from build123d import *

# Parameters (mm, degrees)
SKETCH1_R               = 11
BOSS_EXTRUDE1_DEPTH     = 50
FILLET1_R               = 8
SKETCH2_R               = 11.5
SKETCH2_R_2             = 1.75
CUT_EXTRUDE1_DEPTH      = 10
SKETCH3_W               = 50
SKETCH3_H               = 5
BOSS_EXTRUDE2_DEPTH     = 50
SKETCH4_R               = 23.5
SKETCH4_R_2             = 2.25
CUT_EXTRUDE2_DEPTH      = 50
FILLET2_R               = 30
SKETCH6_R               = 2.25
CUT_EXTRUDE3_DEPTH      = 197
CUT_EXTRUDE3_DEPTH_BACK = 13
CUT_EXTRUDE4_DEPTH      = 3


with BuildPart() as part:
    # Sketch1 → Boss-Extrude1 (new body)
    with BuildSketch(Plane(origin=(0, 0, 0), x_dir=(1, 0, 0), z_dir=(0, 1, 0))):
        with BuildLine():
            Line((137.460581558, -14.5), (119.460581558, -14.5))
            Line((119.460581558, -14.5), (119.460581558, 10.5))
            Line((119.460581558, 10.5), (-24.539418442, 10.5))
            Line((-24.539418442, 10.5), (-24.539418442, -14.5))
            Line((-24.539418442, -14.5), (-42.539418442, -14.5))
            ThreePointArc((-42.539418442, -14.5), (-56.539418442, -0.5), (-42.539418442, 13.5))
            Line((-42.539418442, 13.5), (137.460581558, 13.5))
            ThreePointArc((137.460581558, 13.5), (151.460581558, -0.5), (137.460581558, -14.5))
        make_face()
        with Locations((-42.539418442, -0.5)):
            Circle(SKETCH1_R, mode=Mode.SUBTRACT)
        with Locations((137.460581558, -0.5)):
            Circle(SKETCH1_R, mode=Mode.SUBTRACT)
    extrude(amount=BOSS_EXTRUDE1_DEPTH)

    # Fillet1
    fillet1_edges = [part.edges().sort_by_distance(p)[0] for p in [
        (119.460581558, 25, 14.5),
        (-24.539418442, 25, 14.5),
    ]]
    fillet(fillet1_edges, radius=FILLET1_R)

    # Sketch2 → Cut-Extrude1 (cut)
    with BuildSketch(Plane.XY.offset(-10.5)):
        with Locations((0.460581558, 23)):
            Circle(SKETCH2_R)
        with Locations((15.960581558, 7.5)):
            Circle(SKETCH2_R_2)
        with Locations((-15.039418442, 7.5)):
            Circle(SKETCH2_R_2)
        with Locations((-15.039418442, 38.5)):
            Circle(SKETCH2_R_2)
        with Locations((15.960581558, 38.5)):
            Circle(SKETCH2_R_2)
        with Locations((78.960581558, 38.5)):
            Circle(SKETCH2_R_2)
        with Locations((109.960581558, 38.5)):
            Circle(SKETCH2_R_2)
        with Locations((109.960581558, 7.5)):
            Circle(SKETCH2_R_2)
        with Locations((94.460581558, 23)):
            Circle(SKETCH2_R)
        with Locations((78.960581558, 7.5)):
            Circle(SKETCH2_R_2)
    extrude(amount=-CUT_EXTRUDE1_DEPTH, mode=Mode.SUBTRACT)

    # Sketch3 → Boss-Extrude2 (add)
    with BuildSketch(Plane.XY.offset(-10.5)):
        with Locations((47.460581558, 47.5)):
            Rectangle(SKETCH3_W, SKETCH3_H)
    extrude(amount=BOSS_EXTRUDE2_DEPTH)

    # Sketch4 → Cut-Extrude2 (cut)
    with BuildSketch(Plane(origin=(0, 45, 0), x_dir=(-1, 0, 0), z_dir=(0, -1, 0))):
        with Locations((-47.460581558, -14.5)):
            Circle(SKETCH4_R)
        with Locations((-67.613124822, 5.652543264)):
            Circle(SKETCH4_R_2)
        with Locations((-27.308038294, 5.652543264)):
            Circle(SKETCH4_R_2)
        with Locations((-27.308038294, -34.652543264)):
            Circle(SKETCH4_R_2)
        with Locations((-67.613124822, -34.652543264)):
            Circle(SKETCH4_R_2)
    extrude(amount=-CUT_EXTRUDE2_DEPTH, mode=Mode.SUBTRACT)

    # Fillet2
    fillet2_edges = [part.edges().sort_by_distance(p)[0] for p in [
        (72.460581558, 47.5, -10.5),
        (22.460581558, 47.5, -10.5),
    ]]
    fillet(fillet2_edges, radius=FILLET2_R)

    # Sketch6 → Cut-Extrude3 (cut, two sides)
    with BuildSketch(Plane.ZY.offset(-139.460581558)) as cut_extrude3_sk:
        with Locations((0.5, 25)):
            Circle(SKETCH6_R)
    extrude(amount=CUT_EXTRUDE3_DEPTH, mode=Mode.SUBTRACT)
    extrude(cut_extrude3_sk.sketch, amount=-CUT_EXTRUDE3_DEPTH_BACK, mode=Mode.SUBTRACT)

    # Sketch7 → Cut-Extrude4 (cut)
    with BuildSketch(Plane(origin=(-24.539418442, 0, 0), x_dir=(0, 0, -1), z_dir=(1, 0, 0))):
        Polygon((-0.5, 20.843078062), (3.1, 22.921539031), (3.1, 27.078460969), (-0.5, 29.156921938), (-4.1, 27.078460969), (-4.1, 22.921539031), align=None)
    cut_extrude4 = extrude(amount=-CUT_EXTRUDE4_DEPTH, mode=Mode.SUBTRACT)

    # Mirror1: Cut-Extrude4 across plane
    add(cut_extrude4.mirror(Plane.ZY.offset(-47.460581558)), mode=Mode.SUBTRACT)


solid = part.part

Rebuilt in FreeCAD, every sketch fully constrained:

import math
import FreeCAD as App
import Part
import Sketcher

V = App.Vector
Q = App.Units.Quantity


def edges_at(feature, points):
    """Names of the edges that pass closest to the given points."""
    edges = feature.Shape.Edges
    near = lambda p: min(range(len(edges)), key=lambda i: edges[i].distToShape(Part.Vertex(*p))[0])
    return sorted({f"Edge{near(p) + 1}" for p in points})

doc = App.newDocument("Part")
body = doc.addObject("PartDesign::Body", "Body")

# Sketch on XZ plane
sketch1 = doc.addObject("Sketcher::SketchObject", "Sketch")
body.addObject(sketch1)
sketch1.AttachmentSupport = (doc.XZ_Plane, [""])
sketch1.MapMode = "FlatFace"
sketch1.addGeometry(Part.LineSegment(V(119.460582, 14.5, 0), V(137.460582, 14.5, 0)), False)
sketch1.addGeometry(Part.ArcOfCircle(Part.Circle(V(137.460582, 0.5, 0), V(0, 0, 1), 14), math.radians(-90), math.radians(90)), False)
sketch1.addGeometry(Part.LineSegment(V(137.460582, -13.5, 0), V(-42.539418, -13.5, 0)), False)
sketch1.addGeometry(Part.ArcOfCircle(Part.Circle(V(-42.539418, 0.5, 0), V(0, 0, 1), 14), math.radians(90), math.radians(270)), False)
sketch1.addGeometry(Part.LineSegment(V(-42.539418, 14.5, 0), V(-24.539418, 14.5, 0)), False)
sketch1.addGeometry(Part.LineSegment(V(-24.539418, 14.5, 0), V(-24.539418, -10.5, 0)), False)
sketch1.addGeometry(Part.LineSegment(V(-24.539418, -10.5, 0), V(119.460582, -10.5, 0)), False)
sketch1.addGeometry(Part.LineSegment(V(119.460582, -10.5, 0), V(119.460582, 14.5, 0)), False)
sketch1.addGeometry(Part.Circle(V(137.460582, 0.5, 0), V(0, 0, 1), 11), False)
sketch1.addGeometry(Part.Circle(V(-42.539418, 0.5, 0), V(0, 0, 1), 11), False)
sketch1.addConstraint(Sketcher.Constraint("Tangent", 0, 2, 1, 2))
sketch1.addConstraint(Sketcher.Constraint("Tangent", 1, 1, 2, 1))
sketch1.addConstraint(Sketcher.Constraint("Tangent", 2, 2, 3, 2))
sketch1.addConstraint(Sketcher.Constraint("Tangent", 3, 1, 4, 1))
sketch1.addConstraint(Sketcher.Constraint("Coincident", 4, 2, 5, 1))
sketch1.addConstraint(Sketcher.Constraint("Coincident", 5, 2, 6, 1))
sketch1.addConstraint(Sketcher.Constraint("Coincident", 6, 2, 7, 1))
sketch1.addConstraint(Sketcher.Constraint("Coincident", 7, 2, 0, 1))
sketch1.addConstraint(Sketcher.Constraint("Horizontal", 0))
sketch1.addConstraint(Sketcher.Constraint("Horizontal", 2))
sketch1.addConstraint(Sketcher.Constraint("Horizontal", 4))
sketch1.addConstraint(Sketcher.Constraint("Vertical", 5))
sketch1.addConstraint(Sketcher.Constraint("Horizontal", 6))
sketch1.addConstraint(Sketcher.Constraint("Vertical", 7))
sketch1.addConstraint(Sketcher.Constraint("Coincident", 8, 3, 1, 3))
sketch1.addConstraint(Sketcher.Constraint("Coincident", 9, 3, 3, 3))
sketch1.addConstraint(Sketcher.Constraint("Equal", 1, 3))
sketch1.addConstraint(Sketcher.Constraint("Equal", 8, 9))
sketch1.addConstraint(Sketcher.Constraint("Equal", 0, 4))
sketch1.addConstraint(Sketcher.Constraint("Diameter", 8, Q("22 mm")))
sketch1.addConstraint(Sketcher.Constraint("Radius", 1, Q("14 mm")))
sketch1.addConstraint(Sketcher.Constraint("DistanceX", 0, 1, 0, 2, Q("18 mm")))
sketch1.addConstraint(Sketcher.Constraint("DistanceX", 2, 2, 2, 1, Q("180 mm")))
sketch1.addConstraint(Sketcher.Constraint("DistanceY", 5, 2, 5, 1, Q("25 mm")))
sketch1.addConstraint(Sketcher.Constraint("DistanceY", -1, 1, 1, 3, Q("0.5 mm")))
sketch1.addConstraint(Sketcher.Constraint("DistanceX", -1, 1, 1, 3, Q("137.460582 mm")))
pad1 = doc.addObject("PartDesign::Pad", "Pad")
body.addObject(pad1)
pad1.Profile = sketch1
pad1.Length = 50
pad1.Reversed = True
doc.recompute()

fillet = doc.addObject("PartDesign::Fillet", "Fillet")
body.addObject(fillet)
fillet.Base = (pad1, edges_at(pad1, [(119.461, 25, 14.5), (-24.539, 25, 14.5)]))
fillet.Radius = 8

# Sketch on XY plane
sketch2 = doc.addObject("Sketcher::SketchObject", "Sketch001")
body.addObject(sketch2)
sketch2.AttachmentSupport = (doc.XY_Plane, [""])
sketch2.MapMode = "FlatFace"
sketch2.AttachmentOffset = App.Placement(V(0, 0, -10.5), App.Rotation())
sketch2.addGeometry(Part.Circle(V(0.460582, 23, 0), V(0, 0, 1), 11.5), False)
sketch2.addGeometry(Part.Circle(V(15.960582, 7.5, 0), V(0, 0, 1), 1.75), False)
sketch2.addGeometry(Part.Circle(V(-15.039418, 7.5, 0), V(0, 0, 1), 1.75), False)
sketch2.addGeometry(Part.Circle(V(-15.039418, 38.5, 0), V(0, 0, 1), 1.75), False)
sketch2.addGeometry(Part.Circle(V(15.960582, 38.5, 0), V(0, 0, 1), 1.75), False)
sketch2.addGeometry(Part.Circle(V(78.960582, 38.5, 0), V(0, 0, 1), 1.75), False)
sketch2.addGeometry(Part.Circle(V(109.960582, 38.5, 0), V(0, 0, 1), 1.75), False)
sketch2.addGeometry(Part.Circle(V(109.960582, 7.5, 0), V(0, 0, 1), 1.75), False)
sketch2.addGeometry(Part.Circle(V(94.460582, 23, 0), V(0, 0, 1), 11.5), False)
sketch2.addGeometry(Part.Circle(V(78.960582, 7.5, 0), V(0, 0, 1), 1.75), False)
sketch2.addConstraint(Sketcher.Constraint("Equal", 1, 2))
sketch2.addConstraint(Sketcher.Constraint("Equal", 2, 3))
sketch2.addConstraint(Sketcher.Constraint("Equal", 3, 4))
sketch2.addConstraint(Sketcher.Constraint("Equal", 4, 5))
sketch2.addConstraint(Sketcher.Constraint("Equal", 5, 6))
sketch2.addConstraint(Sketcher.Constraint("Equal", 6, 7))
sketch2.addConstraint(Sketcher.Constraint("Equal", 0, 8))
sketch2.addConstraint(Sketcher.Constraint("Equal", 7, 9))
sketch2.addConstraint(Sketcher.Constraint("Horizontal", 1, 3, 2, 3))
sketch2.addConstraint(Sketcher.Constraint("Horizontal", 3, 3, 4, 3))
sketch2.addConstraint(Sketcher.Constraint("Horizontal", 4, 3, 5, 3))
sketch2.addConstraint(Sketcher.Constraint("Horizontal", 5, 3, 6, 3))
sketch2.addConstraint(Sketcher.Constraint("Horizontal", 2, 3, 7, 3))
sketch2.addConstraint(Sketcher.Constraint("Horizontal", 0, 3, 8, 3))
sketch2.addConstraint(Sketcher.Constraint("Horizontal", 7, 3, 9, 3))
sketch2.addConstraint(Sketcher.Constraint("Vertical", 2, 3, 3, 3))
sketch2.addConstraint(Sketcher.Constraint("Vertical", 1, 3, 4, 3))
sketch2.addConstraint(Sketcher.Constraint("Vertical", 6, 3, 7, 3))
sketch2.addConstraint(Sketcher.Constraint("Vertical", 5, 3, 9, 3))
sketch2.addConstraint(Sketcher.Constraint("Diameter", 0, Q("23 mm")))
sketch2.addConstraint(Sketcher.Constraint("Diameter", 1, Q("3.5 mm")))
sketch2.addConstraint(Sketcher.Constraint("DistanceY", -1, 1, 0, 3, Q("23 mm")))
sketch2.addConstraint(Sketcher.Constraint("DistanceX", 2, 3, 1, 3, Q("31 mm")))
sketch2.addConstraint(Sketcher.Constraint("DistanceY", 2, 3, 3, 3, Q("31 mm")))
sketch2.addConstraint(Sketcher.Constraint("DistanceX", 4, 3, 5, 3, Q("63 mm")))
sketch2.addConstraint(Sketcher.Constraint("DistanceX", 5, 3, 6, 3, Q("31 mm")))
sketch2.addConstraint(Sketcher.Constraint("DistanceY", -1, 1, 1, 3, Q("7.5 mm")))
sketch2.addConstraint(Sketcher.Constraint("DistanceX", 0, 3, 1, 3, Q("15.5 mm")))
sketch2.addConstraint(Sketcher.Constraint("DistanceX", 5, 3, 8, 3, Q("15.5 mm")))
sketch2.addConstraint(Sketcher.Constraint("DistanceX", -1, 1, 0, 3, Q("0.460582 mm")))
pocket1 = doc.addObject("PartDesign::Pocket", "Pocket")
body.addObject(pocket1)
pocket1.Profile = sketch2
pocket1.Length = 10

# Sketch on XY plane
sketch3 = doc.addObject("Sketcher::SketchObject", "Sketch002")
body.addObject(sketch3)
sketch3.AttachmentSupport = (doc.XY_Plane, [""])
sketch3.MapMode = "FlatFace"
sketch3.AttachmentOffset = App.Placement(V(0, 0, -10.5), App.Rotation())
sketch3.addGeometry(Part.LineSegment(V(22.460582, 50, 0), V(22.460582, 45, 0)), False)
sketch3.addGeometry(Part.LineSegment(V(22.460582, 45, 0), V(72.460582, 45, 0)), False)
sketch3.addGeometry(Part.LineSegment(V(72.460582, 45, 0), V(72.460582, 50, 0)), False)
sketch3.addGeometry(Part.LineSegment(V(72.460582, 50, 0), V(22.460582, 50, 0)), False)
sketch3.addConstraint(Sketcher.Constraint("Coincident", 0, 2, 1, 1))
sketch3.addConstraint(Sketcher.Constraint("Coincident", 1, 2, 2, 1))
sketch3.addConstraint(Sketcher.Constraint("Coincident", 2, 2, 3, 1))
sketch3.addConstraint(Sketcher.Constraint("Coincident", 3, 2, 0, 1))
sketch3.addConstraint(Sketcher.Constraint("Vertical", 0))
sketch3.addConstraint(Sketcher.Constraint("Horizontal", 1))
sketch3.addConstraint(Sketcher.Constraint("Vertical", 2))
sketch3.addConstraint(Sketcher.Constraint("Horizontal", 3))
sketch3.addConstraint(Sketcher.Constraint("DistanceX", 1, 1, 1, 2, Q("50 mm")))
sketch3.addConstraint(Sketcher.Constraint("DistanceY", 0, 2, 0, 1, Q("5 mm")))
sketch3.addConstraint(Sketcher.Constraint("DistanceY", -1, 1, 0, 2, Q("45 mm")))
sketch3.addConstraint(Sketcher.Constraint("DistanceX", -1, 1, 0, 2, Q("22.460582 mm")))
pad2 = doc.addObject("PartDesign::Pad", "Pad001")
body.addObject(pad2)
pad2.Profile = sketch3
pad2.Length = 50

# Sketch on XZ plane
sketch4 = doc.addObject("Sketcher::SketchObject", "Sketch003")
body.addObject(sketch4)
sketch4.AttachmentSupport = (doc.XZ_Plane, [""])
sketch4.MapMode = "FlatFace"
sketch4.AttachmentOffset = App.Placement(V(0, 0, -45), App.Rotation())
sketch4.addGeometry(Part.Circle(V(47.460582, 14.5, 0), V(0, 0, 1), 23.5), False)
sketch4.addGeometry(Part.Circle(V(67.613125, -5.652543, 0), V(0, 0, 1), 2.25), False)
sketch4.addGeometry(Part.Circle(V(27.308038, -5.652543, 0), V(0, 0, 1), 2.25), False)
sketch4.addGeometry(Part.Circle(V(27.308038, 34.652543, 0), V(0, 0, 1), 2.25), False)
sketch4.addGeometry(Part.Circle(V(67.613125, 34.652543, 0), V(0, 0, 1), 2.25), False)
sketch4.addConstraint(Sketcher.Constraint("Equal", 1, 2))
sketch4.addConstraint(Sketcher.Constraint("Equal", 2, 3))
sketch4.addConstraint(Sketcher.Constraint("Equal", 3, 4))
sketch4.addConstraint(Sketcher.Constraint("Horizontal", 1, 3, 2, 3))
sketch4.addConstraint(Sketcher.Constraint("Horizontal", 3, 3, 4, 3))
sketch4.addConstraint(Sketcher.Constraint("Vertical", 2, 3, 3, 3))
sketch4.addConstraint(Sketcher.Constraint("Vertical", 1, 3, 4, 3))
sketch4.addConstraint(Sketcher.Constraint("Diameter", 0, Q("47 mm")))
sketch4.addConstraint(Sketcher.Constraint("Diameter", 1, Q("4.5 mm")))
sketch4.addConstraint(Sketcher.Constraint("DistanceY", -1, 1, 0, 3, Q("14.5 mm")))
sketch4.addConstraint(Sketcher.Constraint("DistanceX", -1, 1, 0, 3, Q("47.460582 mm")))
sketch4.addConstraint(Sketcher.Constraint("DistanceX", -1, 1, 2, 3, Q("27.308038 mm")))
sketch4.addConstraint(Sketcher.Constraint("DistanceX", -1, 1, 1, 3, Q("67.613125 mm")))
sketch4.addConstraint(Sketcher.Constraint("DistanceY", 1, 3, -1, 1, Q("5.652543 mm")))
sketch4.addConstraint(Sketcher.Constraint("DistanceY", -1, 1, 3, 3, Q("34.652543 mm")))
pocket2 = doc.addObject("PartDesign::Pocket", "Pocket001")
body.addObject(pocket2)
pocket2.Profile = sketch4
pocket2.Length = 50
doc.recompute()

fillet2 = doc.addObject("PartDesign::Fillet", "Fillet001")
body.addObject(fillet2)
fillet2.Base = (pocket2, edges_at(pocket2, [(72.461, 47.5, -10.5), (22.461, 47.5, -10.5)]))
fillet2.Radius = 30

# Sketch on YZ plane
sketch5 = doc.addObject("Sketcher::SketchObject", "Sketch004")
body.addObject(sketch5)
sketch5.AttachmentSupport = (doc.YZ_Plane, [""])
sketch5.MapMode = "FlatFace"
sketch5.AttachmentOffset = App.Placement(V(0, 0, 139.460582), App.Rotation())
sketch5.addGeometry(Part.Circle(V(25, 0.5, 0), V(0, 0, 1), 2.25), False)
sketch5.addConstraint(Sketcher.Constraint("Diameter", 0, Q("4.5 mm")))
sketch5.addConstraint(Sketcher.Constraint("DistanceX", -1, 1, 0, 3, Q("25 mm")))
sketch5.addConstraint(Sketcher.Constraint("DistanceY", -1, 1, 0, 3, Q("0.5 mm")))
pocket3 = doc.addObject("PartDesign::Pocket", "Pocket002")
body.addObject(pocket3)
pocket3.Profile = sketch5
pocket3.Type = "ThroughAll"
pocket3.Midplane = True

# Sketch on YZ plane
sketch6 = doc.addObject("Sketcher::SketchObject", "Sketch005")
body.addObject(sketch6)
sketch6.AttachmentSupport = (doc.YZ_Plane, [""])
sketch6.MapMode = "FlatFace"
sketch6.AttachmentOffset = App.Placement(V(0, 0, -24.539418), App.Rotation())
sketch6.addGeometry(Part.LineSegment(V(20.843078, 0.5, 0), V(22.921539, -3.1, 0)), False)
sketch6.addGeometry(Part.LineSegment(V(22.921539, -3.1, 0), V(27.078461, -3.1, 0)), False)
sketch6.addGeometry(Part.LineSegment(V(27.078461, -3.1, 0), V(29.156922, 0.5, 0)), False)
sketch6.addGeometry(Part.LineSegment(V(29.156922, 0.5, 0), V(27.078461, 4.1, 0)), False)
sketch6.addGeometry(Part.LineSegment(V(27.078461, 4.1, 0), V(22.921539, 4.1, 0)), False)
sketch6.addGeometry(Part.LineSegment(V(22.921539, 4.1, 0), V(20.843078, 0.5, 0)), False)
sketch6.addConstraint(Sketcher.Constraint("Coincident", 0, 2, 1, 1))
sketch6.addConstraint(Sketcher.Constraint("Coincident", 1, 2, 2, 1))
sketch6.addConstraint(Sketcher.Constraint("Coincident", 2, 2, 3, 1))
sketch6.addConstraint(Sketcher.Constraint("Coincident", 3, 2, 4, 1))
sketch6.addConstraint(Sketcher.Constraint("Coincident", 4, 2, 5, 1))
sketch6.addConstraint(Sketcher.Constraint("Coincident", 5, 2, 0, 1))
sketch6.addConstraint(Sketcher.Constraint("Horizontal", 1))
sketch6.addConstraint(Sketcher.Constraint("Horizontal", 4))
sketch6.addConstraint(Sketcher.Constraint("Parallel", 0, 3))
sketch6.addConstraint(Sketcher.Constraint("Parallel", 2, 5))
sketch6.addConstraint(Sketcher.Constraint("Horizontal", 2, 2, 5, 2))
sketch6.addConstraint(Sketcher.Constraint("Vertical", 1, 2, 3, 2))
sketch6.addConstraint(Sketcher.Constraint("Vertical", 0, 2, 4, 2))
sketch6.addConstraint(Sketcher.Constraint("Angle", 0, Q("-60 deg")))
sketch6.addConstraint(Sketcher.Constraint("DistanceY", 0, 2, -1, 1, Q("3.1 mm")))
sketch6.addConstraint(Sketcher.Constraint("DistanceY", -1, 1, 2, 2, Q("0.5 mm")))
sketch6.addConstraint(Sketcher.Constraint("DistanceX", 1, 1, 1, 2, Q("4.156922 mm")))
sketch6.addConstraint(Sketcher.Constraint("DistanceX", -1, 1, 0, 2, Q("22.921539 mm")))
pocket4 = doc.addObject("PartDesign::Pocket", "Pocket003")
body.addObject(pocket4)
pocket4.Profile = sketch6
pocket4.Length = 3
doc.recompute()

datumplane = doc.addObject("PartDesign::Plane", "DatumPlane")
body.addObject(datumplane)
datumplane.AttachmentSupport = (doc.YZ_Plane, [""])
datumplane.MapMode = "FlatFace"
datumplane.AttachmentOffset = App.Placement(V(0, 0, 47.460582), App.Rotation())
mirrored = doc.addObject("PartDesign::Mirrored", "Mirrored")
body.addObject(mirrored)
mirrored.Originals = [pocket4]
mirrored.MirrorPlane = (datumplane, [""])
body.Tip = mirrored

doc.recompute()
